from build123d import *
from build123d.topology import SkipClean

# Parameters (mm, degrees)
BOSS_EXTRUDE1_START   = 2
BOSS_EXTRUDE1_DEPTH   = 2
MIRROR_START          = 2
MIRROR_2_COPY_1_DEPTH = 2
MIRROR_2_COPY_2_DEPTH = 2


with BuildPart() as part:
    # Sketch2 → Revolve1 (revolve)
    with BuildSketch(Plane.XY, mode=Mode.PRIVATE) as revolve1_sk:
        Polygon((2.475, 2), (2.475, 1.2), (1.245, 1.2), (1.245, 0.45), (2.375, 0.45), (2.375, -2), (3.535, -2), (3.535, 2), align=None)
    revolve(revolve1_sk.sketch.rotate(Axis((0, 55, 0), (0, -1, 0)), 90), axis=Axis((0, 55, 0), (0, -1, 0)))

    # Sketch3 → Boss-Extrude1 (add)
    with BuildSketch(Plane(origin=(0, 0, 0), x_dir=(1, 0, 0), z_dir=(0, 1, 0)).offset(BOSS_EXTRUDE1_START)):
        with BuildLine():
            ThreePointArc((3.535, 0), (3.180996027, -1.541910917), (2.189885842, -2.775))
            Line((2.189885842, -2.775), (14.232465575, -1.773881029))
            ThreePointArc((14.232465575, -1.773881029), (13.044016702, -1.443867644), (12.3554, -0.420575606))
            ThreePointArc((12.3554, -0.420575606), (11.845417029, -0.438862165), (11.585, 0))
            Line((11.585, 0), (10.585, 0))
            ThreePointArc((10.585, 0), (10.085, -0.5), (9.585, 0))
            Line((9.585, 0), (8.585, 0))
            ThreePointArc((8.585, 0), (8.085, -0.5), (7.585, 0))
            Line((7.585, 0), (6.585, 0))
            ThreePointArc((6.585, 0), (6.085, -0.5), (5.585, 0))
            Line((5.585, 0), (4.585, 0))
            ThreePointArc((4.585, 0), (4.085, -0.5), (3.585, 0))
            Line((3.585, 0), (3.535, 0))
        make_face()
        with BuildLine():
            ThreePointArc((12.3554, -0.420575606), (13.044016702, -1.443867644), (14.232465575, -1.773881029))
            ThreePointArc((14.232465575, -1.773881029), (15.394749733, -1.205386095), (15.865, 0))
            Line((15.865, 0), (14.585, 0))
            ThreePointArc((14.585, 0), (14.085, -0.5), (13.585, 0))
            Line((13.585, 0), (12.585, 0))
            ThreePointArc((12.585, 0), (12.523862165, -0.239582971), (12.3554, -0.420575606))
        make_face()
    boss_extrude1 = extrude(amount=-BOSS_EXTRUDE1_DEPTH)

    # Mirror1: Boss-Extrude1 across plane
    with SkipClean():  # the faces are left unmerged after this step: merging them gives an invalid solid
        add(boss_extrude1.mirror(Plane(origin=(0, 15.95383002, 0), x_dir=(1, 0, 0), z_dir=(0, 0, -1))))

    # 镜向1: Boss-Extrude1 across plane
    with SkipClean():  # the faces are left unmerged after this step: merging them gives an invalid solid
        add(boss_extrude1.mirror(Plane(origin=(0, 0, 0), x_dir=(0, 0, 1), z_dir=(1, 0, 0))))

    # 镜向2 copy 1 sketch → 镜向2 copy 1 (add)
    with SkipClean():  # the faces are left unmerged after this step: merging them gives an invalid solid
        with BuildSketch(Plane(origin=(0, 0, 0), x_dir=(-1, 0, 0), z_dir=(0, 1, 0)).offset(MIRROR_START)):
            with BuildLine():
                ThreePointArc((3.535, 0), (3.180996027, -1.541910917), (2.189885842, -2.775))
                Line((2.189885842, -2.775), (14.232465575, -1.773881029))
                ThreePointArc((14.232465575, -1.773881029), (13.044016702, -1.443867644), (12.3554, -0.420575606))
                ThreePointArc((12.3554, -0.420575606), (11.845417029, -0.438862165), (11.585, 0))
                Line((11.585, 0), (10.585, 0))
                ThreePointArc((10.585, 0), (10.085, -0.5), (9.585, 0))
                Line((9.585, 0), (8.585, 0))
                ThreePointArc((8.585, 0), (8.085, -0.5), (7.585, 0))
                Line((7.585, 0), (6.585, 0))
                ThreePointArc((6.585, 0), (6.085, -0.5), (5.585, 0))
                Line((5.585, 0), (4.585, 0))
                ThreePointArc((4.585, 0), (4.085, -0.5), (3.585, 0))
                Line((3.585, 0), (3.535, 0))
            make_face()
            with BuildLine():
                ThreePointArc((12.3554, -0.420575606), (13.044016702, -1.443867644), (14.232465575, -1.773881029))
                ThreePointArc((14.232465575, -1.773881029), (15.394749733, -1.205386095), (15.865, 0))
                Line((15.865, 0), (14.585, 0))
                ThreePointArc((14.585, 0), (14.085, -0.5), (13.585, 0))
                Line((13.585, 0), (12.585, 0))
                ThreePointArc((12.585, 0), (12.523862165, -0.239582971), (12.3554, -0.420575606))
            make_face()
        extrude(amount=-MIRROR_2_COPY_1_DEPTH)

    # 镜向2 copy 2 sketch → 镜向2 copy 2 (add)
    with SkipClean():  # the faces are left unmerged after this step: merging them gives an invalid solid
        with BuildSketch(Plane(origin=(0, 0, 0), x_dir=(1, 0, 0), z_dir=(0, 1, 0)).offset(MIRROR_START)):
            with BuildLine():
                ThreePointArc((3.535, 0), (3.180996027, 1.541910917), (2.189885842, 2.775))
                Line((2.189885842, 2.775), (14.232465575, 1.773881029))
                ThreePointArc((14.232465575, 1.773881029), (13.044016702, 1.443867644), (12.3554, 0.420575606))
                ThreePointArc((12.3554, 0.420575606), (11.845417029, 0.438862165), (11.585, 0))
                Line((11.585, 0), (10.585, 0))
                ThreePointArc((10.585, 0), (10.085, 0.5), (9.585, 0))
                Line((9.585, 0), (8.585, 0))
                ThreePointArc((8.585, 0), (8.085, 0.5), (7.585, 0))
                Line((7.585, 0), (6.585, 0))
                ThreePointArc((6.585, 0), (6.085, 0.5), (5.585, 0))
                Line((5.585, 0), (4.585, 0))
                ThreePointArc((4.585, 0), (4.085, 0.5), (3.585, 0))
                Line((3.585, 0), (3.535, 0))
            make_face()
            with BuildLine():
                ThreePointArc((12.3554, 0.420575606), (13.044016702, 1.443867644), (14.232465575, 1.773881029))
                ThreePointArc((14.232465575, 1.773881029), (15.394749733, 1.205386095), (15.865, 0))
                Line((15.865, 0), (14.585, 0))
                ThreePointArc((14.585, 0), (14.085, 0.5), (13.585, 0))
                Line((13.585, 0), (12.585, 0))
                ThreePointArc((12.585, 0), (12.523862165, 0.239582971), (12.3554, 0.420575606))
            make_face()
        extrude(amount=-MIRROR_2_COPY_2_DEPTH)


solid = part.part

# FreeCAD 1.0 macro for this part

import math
import FreeCAD as App
import Part
import Sketcher
from FreeCAD import Vector

doc = App.newDocument("Part")
body = doc.addObject("PartDesign::Body", "Body")

# Sketch on XY plane
sketch1 = body.newObject("Sketcher::SketchObject", "Sketch")
sketch1.AttachmentSupport = (doc.getObject("XY_Plane"), [""])
sketch1.MapMode = "FlatFace"
sketch1.addGeometry([
    Part.LineSegment(Vector(2.5, 2, 0), Vector(2.5, 1.2, 0)),  # 0
    Part.LineSegment(Vector(2.5, 1.2, 0), Vector(1.2, 1.2, 0)),  # 1
    Part.LineSegment(Vector(1.2, 1.2, 0), Vector(1.2, 0.5, 0)),  # 2
    Part.LineSegment(Vector(1.2, 0.5, 0), Vector(2.4, 0.5, 0)),  # 3
    Part.LineSegment(Vector(2.4, 0.5, 0), Vector(2.4, -2, 0)),  # 4
    Part.LineSegment(Vector(2.4, -2, 0), Vector(3.5, -2, 0)),  # 5
    Part.LineSegment(Vector(3.5, -2, 0), Vector(3.5, 2, 0)),  # 6
    Part.LineSegment(Vector(3.5, 2, 0), Vector(2.5, 2, 0)),  # 7
], False)
sketch1.addConstraint([
    Sketcher.Constraint("Coincident", 0, 2, 1, 1),
    Sketcher.Constraint("Coincident", 1, 2, 2, 1),
    Sketcher.Constraint("Coincident", 2, 2, 3, 1),
    Sketcher.Constraint("Coincident", 3, 2, 4, 1),
    Sketcher.Constraint("Coincident", 4, 2, 5, 1),
    Sketcher.Constraint("Coincident", 5, 2, 6, 1),
    Sketcher.Constraint("Coincident", 6, 2, 7, 1),
    Sketcher.Constraint("Coincident", 7, 2, 0, 1),
    Sketcher.Constraint("Vertical", 0),
    Sketcher.Constraint("Horizontal", 1),
    Sketcher.Constraint("Vertical", 2),
    Sketcher.Constraint("Horizontal", 3),
    Sketcher.Constraint("Vertical", 4),
    Sketcher.Constraint("Horizontal", 5),
    Sketcher.Constraint("Vertical", 6),
    Sketcher.Constraint("Horizontal", 7),
    Sketcher.Constraint("DistanceY", 6, 1, 6, 2, 4.0),
    Sketcher.Constraint("DistanceY", 0, 2, 0, 1, 0.8),
    Sketcher.Constraint("DistanceY", 4, 2, -1, 1, 2.0),
    Sketcher.Constraint("DistanceX", 1, 2, 1, 1, 1.23),
    Sketcher.Constraint("DistanceX", 3, 1, 3, 2, 1.13),
    Sketcher.Constraint("DistanceX", 5, 1, 5, 2, 1.16),
    Sketcher.Constraint("DistanceY", 2, 2, 2, 1, 0.75),
    Sketcher.Constraint("DistanceX", -1, 1, 0, 2, 2.475),
])
revolution = body.newObject("PartDesign::Revolution", "Revolution")
revolution.Profile = sketch1
revolution.ReferenceAxis = (sketch1, ["V_Axis"])
revolution.Angle = 360

# Sketch on XZ plane
sketch2 = body.newObject("Sketcher::SketchObject", "Sketch001")
sketch2.AttachmentSupport = (doc.getObject("XZ_Plane"), [""])
sketch2.MapMode = "FlatFace"
sketch2.AttachmentOffset = App.Placement(Vector(0, 0, -2), App.Rotation())
sketch2.addGeometry([
    Part.ArcOfCircle(Part.Circle(Vector(0, 0, 0), Vector(0, 0, 1), 3.535), math.radians(0), math.radians(52)),  # 0
    Part.LineSegment(Vector(2.19, 2.775, 0), Vector(14.232, 1.774, 0)),  # 1
    Part.ArcOfCircle(Part.Circle(Vector(14.085, 0, 0), Vector(0, 0, 1), 1.78), math.radians(0), math.radians(85)),  # 2
    Part.LineSegment(Vector(15.865, 0, 0), Vector(14.585, 0, 0)),  # 3
    Part.ArcOfCircle(Part.Circle(Vector(14.085, 0, 0), Vector(0, 0, 1), 0.5), math.radians(0), math.radians(180)),  # 4
    Part.LineSegment(Vector(13.585, 0, 0), Vector(12.585, 0, 0)),  # 5
    Part.ArcOfCircle(Part.Circle(Vector(12.085, 0, 0), Vector(0, 0, 1), 0.5), math.radians(0), math.radians(57)),  # 6
    Part.ArcOfCircle(Part.Circle(Vector(12.085, 0, 0), Vector(0, 0, 1), 0.5), math.radians(57), math.radians(180)),  # 7
    Part.LineSegment(Vector(11.585, 0, 0), Vector(10.585, 0, 0)),  # 8
    Part.ArcOfCircle(Part.Circle(Vector(10.085, 0, 0), Vector(0, 0, 1), 0.5), math.radians(0), math.radians(180)),  # 9
    Part.LineSegment(Vector(9.585, 0, 0), Vector(8.585, 0, 0)),  # 10
    Part.ArcOfCircle(Part.Circle(Vector(8.085, 0, 0), Vector(0, 0, 1), 0.5), math.radians(0), math.radians(180)),  # 11
    Part.LineSegment(Vector(7.585, 0, 0), Vector(6.585, 0, 0)),  # 12
    Part.ArcOfCircle(Part.Circle(Vector(6.085, 0, 0), Vector(0, 0, 1), 0.5), math.radians(0), math.radians(180)),  # 13
    Part.LineSegment(Vector(5.585, 0, 0), Vector(4.585, 0, 0)),  # 14
    Part.ArcOfCircle(Part.Circle(Vector(4.085, 0, 0), Vector(0, 0, 1), 0.5), math.radians(0), math.radians(180)),  # 15
    Part.LineSegment(Vector(3.585, 0, 0), Vector(3.535, 0, 0)),  # 16
], False)
sketch2.addConstraint([
    Sketcher.Constraint("Coincident", 0, 2, 1, 1),
    Sketcher.Constraint("Tangent", 1, 2, 2, 2),
    Sketcher.Constraint("Coincident", 2, 1, 3, 1),
    Sketcher.Constraint("Coincident", 3, 2, 4, 1),
    Sketcher.Constraint("Coincident", 4, 2, 5, 1),
    Sketcher.Constraint("Coincident", 5, 2, 6, 1),
    Sketcher.Constraint("Tangent", 6, 2, 7, 1),
    Sketcher.Constraint("Coincident", 7, 2, 8, 1),
    Sketcher.Constraint("Coincident", 8, 2, 9, 1),
    Sketcher.Constraint("Coincident", 9, 2, 10, 1),
    Sketcher.Constraint("Coincident", 10, 2, 11, 1),
    Sketcher.Constraint("Coincident", 11, 2, 12, 1),
    Sketcher.Constraint("Coincident", 12, 2, 13, 1),
    Sketcher.Constraint("Coincident", 13, 2, 14, 1),
    Sketcher.Constraint("Coincident", 14, 2, 15, 1),
    Sketcher.Constraint("Coincident", 15, 2, 16, 1),
    Sketcher.Constraint("Coincident", 16, 2, 0, 1),
    Sketcher.Constraint("Horizontal", 3),
    Sketcher.Constraint("Horizontal", 5),
    Sketcher.Constraint("Horizontal", 8),
    Sketcher.Constraint("Horizontal", 10),
    Sketcher.Constraint("Horizontal", 12),
    Sketcher.Constraint("Horizontal", 14),
    Sketcher.Constraint("Horizontal", 16),
    Sketcher.Constraint("Coincident", 0, 3, -1, 1),
    Sketcher.Constraint("Coincident", 4, 3, 2, 3),
    Sketcher.Constraint("Equal", 4, 6),
    Sketcher.Constraint("Equal", 6, 7),
    Sketcher.Constraint("Equal", 7, 9),
    Sketcher.Constraint("Equal", 9, 11),
    Sketcher.Constraint("Equal", 11, 13),
    Sketcher.Constraint("Equal", 13, 15),
    Sketcher.Constraint("PointOnObject", 2, 3, -1),
    Sketcher.Constraint("PointOnObject", 6, 3, -1),
    Sketcher.Constraint("PointOnObject", 9, 3, -1),
    Sketcher.Constraint("PointOnObject", 11, 3, -1),
    Sketcher.Constraint("PointOnObject", 13, 3, -1),
    Sketcher.Constraint("PointOnObject", 15, 3, -1),
    Sketcher.Constraint("PointOnObject", 2, 1, -1),
    Sketcher.Constraint("PointOnObject", 4, 2, -1),
    Sketcher.Constraint("PointOnObject", 7, 2, -1),
    Sketcher.Constraint("PointOnObject", 9, 2, -1),
    Sketcher.Constraint("PointOnObject", 11, 2, -1),
    Sketcher.Constraint("PointOnObject", 13, 2, -1),
    Sketcher.Constraint("PointOnObject", 15, 2, -1),
    Sketcher.Constraint("Equal", 5, 8),
    Sketcher.Constraint("Equal", 8, 10),
    Sketcher.Constraint("Equal", 10, 12),
    Sketcher.Constraint("Equal", 12, 14),
    Sketcher.Constraint("Radius", 4, 0.5),
    Sketcher.Constraint("DistanceX", 5, 2, 5, 1, 1.0),
    Sketcher.Constraint("Radius", 2, 1.78),
    Sketcher.Constraint("Radius", 0, 3.535),
    Sketcher.Constraint("DistanceX", 16, 2, 16, 1, 0.05),
    Sketcher.Constraint("DistanceY", -1, 1, 0, 2, 2.775),
    Sketcher.Constraint("DistanceX", -1, 1, 6, 2, 12.3554),
])
pad1 = body.newObject("PartDesign::Pad", "Pad")
pad1.Profile = sketch2
pad1.Length = 2
doc.recompute()

mirrored = body.newObject("PartDesign::Mirrored", "Mirrored")
mirrored.Originals = [pad1]
mirrored.MirrorPlane = (doc.getObject("XY_Plane"), [""])
body.Tip = mirrored
doc.recompute()

mirrored2 = body.newObject("PartDesign::Mirrored", "Mirrored001")
mirrored2.Originals = [pad1]
mirrored2.MirrorPlane = (doc.getObject("YZ_Plane"), [""])
body.Tip = mirrored2

# Sketch on XZ plane
sketch3 = body.newObject("Sketcher::SketchObject", "Sketch002")
sketch3.AttachmentSupport = (doc.getObject("XZ_Plane"), [""])
sketch3.MapMode = "FlatFace"
sketch3.AttachmentOffset = App.Placement(Vector(0, 0, -2), App.Rotation())
sketch3.addGeometry([
    Part.ArcOfCircle(Part.Circle(Vector(0, 0, 0), Vector(0, 0, 1), 3.535), math.radians(180), math.radians(232)),  # 0
    Part.LineSegment(Vector(-2.19, -2.775, 0), Vector(-14.232, -1.774, 0)),  # 1
    Part.ArcOfCircle(Part.Circle(Vector(-14.085, 0, 0), Vector(0, 0, 1), 1.78), math.radians(-95), math.radians(-14)),  # 2
    Part.ArcOfCircle(Part.Circle(Vector(-12.085, 0, 0), Vector(0, 0, 1), 0.5), math.radians(-123), math.radians(0)),  # 3
    Part.LineSegment(Vector(-11.585, 0, 0), Vector(-10.585, 0, 0)),  # 4
    Part.ArcOfCircle(Part.Circle(Vector(-10.085, 0, 0), Vector(0, 0, 1), 0.5), math.radians(180), math.radians(360)),  # 5
    Part.LineSegment(Vector(-9.585, 0, 0), Vector(-8.585, 0, 0)),  # 6
    Part.ArcOfCircle(Part.Circle(Vector(-8.085, 0, 0), Vector(0, 0, 1), 0.5), math.radians(180), math.radians(360)),  # 7
    Part.LineSegment(Vector(-7.585, 0, 0), Vector(-6.585, 0, 0)),  # 8
    Part.ArcOfCircle(Part.Circle(Vector(-6.085, 0, 0), Vector(0, 0, 1), 0.5), math.radians(180), math.radians(360)),  # 9
    Part.LineSegment(Vector(-5.585, 0, 0), Vector(-4.585, 0, 0)),  # 10
    Part.ArcOfCircle(Part.Circle(Vector(-4.085, 0, 0), Vector(0, 0, 1), 0.5), math.radians(180), math.radians(360)),  # 11
    Part.LineSegment(Vector(-3.585, 0, 0), Vector(-3.535, 0, 0)),  # 12
    Part.ArcOfCircle(Part.Circle(Vector(-14.085, 0, 0), Vector(0, 0, 1), 1.78), math.radians(-95), math.radians(-14)),  # 13
    Part.ArcOfCircle(Part.Circle(Vector(-14.085, 0, 0), Vector(0, 0, 1), 1.78), math.radians(180), math.radians(265)),  # 14
    Part.LineSegment(Vector(-15.865, 0, 0), Vector(-14.585, 0, 0)),  # 15
    Part.ArcOfCircle(Part.Circle(Vector(-14.085, 0, 0), Vector(0, 0, 1), 0.5), math.radians(180), math.radians(360)),  # 16
    Part.LineSegment(Vector(-13.585, 0, 0), Vector(-12.585, 0, 0)),  # 17
    Part.ArcOfCircle(Part.Circle(Vector(-12.085, 0, 0), Vector(0, 0, 1), 0.5), math.radians(-180), math.radians(-123)),  # 18
], False)
sketch3.addConstraint([
    Sketcher.Constraint("Coincident", 0, 2, 1, 1),
    Sketcher.Constraint("Tangent", 1, 2, 2, 1),
    Sketcher.Constraint("Coincident", 2, 2, 3, 1),
    Sketcher.Constraint("Coincident", 3, 2, 4, 1),
    Sketcher.Constraint("Coincident", 4, 2, 5, 1),
    Sketcher.Constraint("Coincident", 5, 2, 6, 1),
    Sketcher.Constraint("Coincident", 6, 2, 7, 1),
    Sketcher.Constraint("Coincident", 7, 2, 8, 1),
    Sketcher.Constraint("Coincident", 8, 2, 9, 1),
    Sketcher.Constraint("Coincident", 9, 2, 10, 1),
    Sketcher.Constraint("Coincident", 10, 2, 11, 1),
    Sketcher.Constraint("Coincident", 11, 2, 12, 1),
    Sketcher.Constraint("Coincident", 12, 2, 0, 1),
    Sketcher.Constraint("Tangent", 13, 1, 14, 2),
    Sketcher.Constraint("Coincident", 14, 1, 15, 1),
    Sketcher.Constraint("Coincident", 15, 2, 16, 1),
    Sketcher.Constraint("Coincident", 16, 2, 17, 1),
    Sketcher.Constraint("Coincident", 17, 2, 18, 1),
    Sketcher.Constraint("Coincident", 18, 2, 13, 2),
    Sketcher.Constraint("Horizontal", 4),
    Sketcher.Constraint("Horizontal", 6),
    Sketcher.Constraint("Horizontal", 8),
    Sketcher.Constraint("Horizontal", 10),
    Sketcher.Constraint("Horizontal", 12),
    Sketcher.Constraint("Horizontal", 15),
    Sketcher.Constraint("Horizontal", 17),
    Sketcher.Constraint("Coincident", 0, 3, -1, 1),
    Sketcher.Constraint("Coincident", 13, 3, 2, 3),
    Sketcher.Constraint("Coincident", 16, 3, 2, 3),
    Sketcher.Constraint("Coincident", 18, 3, 3, 3),
    Sketcher.Constraint("Coincident", 13, 1, 1, 2),
    Sketcher.Constraint("Equal", 3, 5),
    Sketcher.Constraint("Equal", 5, 7),
    Sketcher.Constraint("Equal", 7, 9),
    Sketcher.Constraint("Equal", 9, 11),
    Sketcher.Constraint("Equal", 13, 14),
    Sketcher.Constraint("Equal", 11, 16),
    Sketcher.Constraint("Equal", 16, 18),
    Sketcher.Constraint("PointOnObject", 2, 3, -1),
    Sketcher.Constraint("PointOnObject", 3, 3, -1),
    Sketcher.Constraint("PointOnObject", 5, 3, -1),
    Sketcher.Constraint("PointOnObject", 7, 3, -1),
    Sketcher.Constraint("PointOnObject", 9, 3, -1),
    Sketcher.Constraint("PointOnObject", 11, 3, -1),
    Sketcher.Constraint("PointOnObject", 3, 2, -1),
    Sketcher.Constraint("PointOnObject", 5, 2, -1),
    Sketcher.Constraint("PointOnObject", 7, 2, -1),
    Sketcher.Constraint("PointOnObject", 9, 2, -1),
    Sketcher.Constraint("PointOnObject", 11, 2, -1),
    Sketcher.Constraint("PointOnObject", 14, 1, -1),
    Sketcher.Constraint("PointOnObject", 16, 2, -1),
    Sketcher.Constraint("Equal", 4, 6),
    Sketcher.Constraint("Equal", 6, 8),
    Sketcher.Constraint("Equal", 8, 10),
    Sketcher.Constraint("Equal", 10, 17),
    Sketcher.Constraint("Radius", 3, 0.5),
    Sketcher.Constraint("DistanceX", 4, 1, 4, 2, 1.0),
    Sketcher.Constraint("Radius", 2, 1.78),
    Sketcher.Constraint("Radius", 0, 3.535),
    Sketcher.Constraint("DistanceX", 12, 1, 12, 2, 0.05),
    Sketcher.Constraint("DistanceY", 0, 2, -1, 1, 2.775),
])
pad2 = body.newObject("PartDesign::Pad", "Pad001")
pad2.Profile = sketch3
pad2.Length = 2

# Sketch on XZ plane
sketch4 = body.newObject("Sketcher::SketchObject", "Sketch003")
sketch4.AttachmentSupport = (doc.getObject("XZ_Plane"), [""])
sketch4.MapMode = "FlatFace"
sketch4.AttachmentOffset = App.Placement(Vector(0, 0, -2), App.Rotation())
sketch4.addGeometry([
    Part.ArcOfCircle(Part.Circle(Vector(0, 0, 0), Vector(0, 0, 1), 3.535), math.radians(-52), math.radians(0)),  # 0
    Part.LineSegment(Vector(3.535, 0, 0), Vector(3.585, 0, 0)),  # 1
    Part.ArcOfCircle(Part.Circle(Vector(4.085, 0, 0), Vector(0, 0, 1), 0.5), math.radians(180), math.radians(360)),  # 2
    Part.LineSegment(Vector(4.585, 0, 0), Vector(5.585, 0, 0)),  # 3
    Part.ArcOfCircle(Part.Circle(Vector(6.085, 0, 0), Vector(0, 0, 1), 0.5), math.radians(180), math.radians(360)),  # 4
    Part.LineSegment(Vector(6.585, 0, 0), Vector(7.585, 0, 0)),  # 5
    Part.ArcOfCircle(Part.Circle(Vector(8.085, 0, 0), Vector(0, 0, 1), 0.5), math.radians(180), math.radians(360)),  # 6
    Part.LineSegment(Vector(8.585, 0, 0), Vector(9.585, 0, 0)),  # 7
    Part.ArcOfCircle(Part.Circle(Vector(10.085, 0, 0), Vector(0, 0, 1), 0.5), math.radians(180), math.radians(360)),  # 8
    Part.LineSegment(Vector(10.585, 0, 0), Vector(11.585, 0, 0)),  # 9
    Part.ArcOfCircle(Part.Circle(Vector(12.085, 0, 0), Vector(0, 0, 1), 0.5), math.radians(180), math.radians(303)),  # 10
    Part.ArcOfCircle(Part.Circle(Vector(14.085, 0, 0), Vector(0, 0, 1), 1.78), math.radians(-166), math.radians(-85)),  # 11
    Part.LineSegment(Vector(14.232, -1.774, 0), Vector(2.19, -2.775, 0)),  # 12
    Part.ArcOfCircle(Part.Circle(Vector(14.085, 0, 0), Vector(0, 0, 1), 1.78), math.radians(-166), math.radians(-85)),  # 13
    Part.ArcOfCircle(Part.Circle(Vector(12.085, 0, 0), Vector(0, 0, 1), 0.5), math.radians(-57), math.radians(0)),  # 14
    Part.LineSegment(Vector(12.585, 0, 0), Vector(13.585, 0, 0)),  # 15
    Part.ArcOfCircle(Part.Circle(Vector(14.085, 0, 0), Vector(0, 0, 1), 0.5), math.radians(180), math.radians(360)),  # 16
    Part.LineSegment(Vector(14.585, 0, 0), Vector(15.865, 0, 0)),  # 17
    Part.ArcOfCircle(Part.Circle(Vector(14.085, 0, 0), Vector(0, 0, 1), 1.78), math.radians(-85), math.radians(0)),  # 18
], False)
sketch4.addConstraint([
    Sketcher.Constraint("Coincident", 0, 2, 1, 1),
    Sketcher.Constraint("Coincident", 1, 2, 2, 1),
    Sketcher.Constraint("Coincident", 2, 2, 3, 1),
    Sketcher.Constraint("Coincident", 3, 2, 4, 1),
    Sketcher.Constraint("Coincident", 4, 2, 5, 1),
    Sketcher.Constraint("Coincident", 5, 2, 6, 1),
    Sketcher.Constraint("Coincident", 6, 2, 7, 1),
    Sketcher.Constraint("Coincident", 7, 2, 8, 1),
    Sketcher.Constraint("Coincident", 8, 2, 9, 1),
    Sketcher.Constraint("Coincident", 9, 2, 10, 1),
    Sketcher.Constraint("Coincident", 10, 2, 11, 1),
    Sketcher.Constraint("Tangent", 11, 2, 12, 1),
    Sketcher.Constraint("Coincident", 12, 2, 0, 1),
    Sketcher.Constraint("Coincident", 13, 1, 14, 1),
    Sketcher.Constraint("Coincident", 14, 2, 15, 1),
    Sketcher.Constraint("Coincident", 15, 2, 16, 1),
    Sketcher.Constraint("Coincident", 16, 2, 17, 1),
    Sketcher.Constraint("Coincident", 17, 2, 18, 2),
    Sketcher.Constraint("Tangent", 18, 1, 13, 2),
    Sketcher.Constraint("Horizontal", 1),
    Sketcher.Constraint("Horizontal", 3),
    Sketcher.Constraint("Horizontal", 5),
    Sketcher.Constraint("Horizontal", 7),
    Sketcher.Constraint("Horizontal", 9),
    Sketcher.Constraint("Horizontal", 15),
    Sketcher.Constraint("Horizontal", 17),
    Sketcher.Constraint("Coincident", 0, 3, -1, 1),
    Sketcher.Constraint("Coincident", 13, 3, 11, 3),
    Sketcher.Constraint("Coincident", 14, 3, 10, 3),
    Sketcher.Constraint("Coincident", 16, 3, 11, 3),
    Sketcher.Constraint("Coincident", 13, 1, 10, 2),
    Sketcher.Constraint("Equal", 2, 4),
    Sketcher.Constraint("Equal", 4, 6),
    Sketcher.Constraint("Equal", 6, 8),
    Sketcher.Constraint("Equal", 8, 10),
    Sketcher.Constraint("Equal", 14, 16),
    Sketcher.Constraint("Equal", 13, 18),
    Sketcher.Constraint("PointOnObject", 2, 3, -1),
    Sketcher.Constraint("PointOnObject", 4, 3, -1),
    Sketcher.Constraint("PointOnObject", 6, 3, -1),
    Sketcher.Constraint("PointOnObject", 8, 3, -1),
    Sketcher.Constraint("PointOnObject", 10, 3, -1),
    Sketcher.Constraint("PointOnObject", 11, 3, -1),
    Sketcher.Constraint("PointOnObject", 0, 2, -1),
    Sketcher.Constraint("PointOnObject", 2, 2, -1),
    Sketcher.Constraint("PointOnObject", 4, 2, -1),
    Sketcher.Constraint("PointOnObject", 6, 2, -1),
    Sketcher.Constraint("PointOnObject", 8, 2, -1),
    Sketcher.Constraint("PointOnObject", 14, 2, -1),
    Sketcher.Constraint("PointOnObject", 16, 2, -1),
    Sketcher.Constraint("Equal", 3, 5),
    Sketcher.Constraint("Equal", 5, 7),
    Sketcher.Constraint("Equal", 7, 9),
    Sketcher.Constraint("Equal", 9, 15),
    Sketcher.Constraint("Radius", 2, 0.5),
    Sketcher.Constraint("DistanceX", 3, 1, 3, 2, 1.0),
    Sketcher.Constraint("Radius", 11, 1.78),
    Sketcher.Constraint("Radius", 0, 3.535),
    Sketcher.Constraint("DistanceX", 1, 1, 1, 2, 0.05),
    Sketcher.Constraint("DistanceY", 12, 2, -1, 1, 2.775),
    Sketcher.Constraint("DistanceY", 18, 1, -1, 1, 1.773881),
])
pad3 = body.newObject("PartDesign::Pad", "Pad002")
pad3.Profile = sketch4
pad3.Length = 2

doc.recompute()
